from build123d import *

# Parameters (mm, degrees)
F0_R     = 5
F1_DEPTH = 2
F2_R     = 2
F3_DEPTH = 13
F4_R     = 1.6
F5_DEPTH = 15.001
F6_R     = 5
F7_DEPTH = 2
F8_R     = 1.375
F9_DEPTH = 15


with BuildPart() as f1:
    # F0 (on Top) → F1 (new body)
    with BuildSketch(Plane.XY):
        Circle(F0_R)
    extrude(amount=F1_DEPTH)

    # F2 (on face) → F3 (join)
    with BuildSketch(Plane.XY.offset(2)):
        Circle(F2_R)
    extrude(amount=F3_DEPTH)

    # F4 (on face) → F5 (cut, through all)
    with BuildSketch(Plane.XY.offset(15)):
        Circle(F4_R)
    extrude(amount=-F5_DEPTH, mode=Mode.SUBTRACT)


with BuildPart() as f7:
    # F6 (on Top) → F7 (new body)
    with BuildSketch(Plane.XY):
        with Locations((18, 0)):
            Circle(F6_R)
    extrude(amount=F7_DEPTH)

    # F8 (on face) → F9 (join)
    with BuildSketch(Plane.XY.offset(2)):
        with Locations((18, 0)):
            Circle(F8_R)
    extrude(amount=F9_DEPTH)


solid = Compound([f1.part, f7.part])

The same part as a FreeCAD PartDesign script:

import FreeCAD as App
import Part
import Sketcher

V = App.Vector
Q = App.Units.Quantity

doc = App.newDocument("Part")
body = doc.addObject("PartDesign::Body", "Body")

# Sketch on XY plane
sketch1 = body.newObject("Sketcher::SketchObject", "Sketch")
sketch1.AttachmentSupport = (doc.getObject("XY_Plane"), [""])
sketch1.MapMode = "FlatFace"
sketch1.addGeometry(Part.Circle(V(0, 0, 0), V(0, 0, 1), 5), False)
sketch1.addConstraint([
    Sketcher.Constraint("Coincident", 0, 3, -1, 1),
    Sketcher.Constraint("Diameter", 0, Q("10 mm")),
])
pad1 = body.newObject("PartDesign::Pad", "Pad")
pad1.Profile = sketch1
pad1.Length = 2

# Sketch on XY plane
sketch2 = body.newObject("Sketcher::SketchObject", "Sketch001")
sketch2.AttachmentSupport = (doc.getObject("XY_Plane"), [""])
sketch2.MapMode = "FlatFace"
sketch2.AttachmentOffset = App.Placement(V(0, 0, 2), App.Rotation())
sketch2.addGeometry(Part.Circle(V(0, 0, 0), V(0, 0, 1), 2), False)
sketch2.addConstraint([
    Sketcher.Constraint("Coincident", 0, 3, -1, 1),
    Sketcher.Constraint("Diameter", 0, Q("4 mm")),
])
pad2 = body.newObject("PartDesign::Pad", "Pad001")
pad2.Profile = sketch2
pad2.Length = 13

# Sketch on XY plane
sketch3 = body.newObject("Sketcher::SketchObject", "Sketch002")
sketch3.AttachmentSupport = (doc.getObject("XY_Plane"), [""])
sketch3.MapMode = "FlatFace"
sketch3.AttachmentOffset = App.Placement(V(0, 0, 15), App.Rotation())
sketch3.addGeometry(Part.Circle(V(0, 0, 0), V(0, 0, 1), 1.6), False)
sketch3.addConstraint([
    Sketcher.Constraint("Coincident", 0, 3, -1, 1),
    Sketcher.Constraint("Diameter", 0, Q("3.2 mm")),
])
pocket1 = body.newObject("PartDesign::Pocket", "Pocket")
pocket1.Profile = sketch3
pocket1.Type = "ThroughAll"
body2 = doc.addObject("PartDesign::Body", "Body001")

# Sketch on XY plane
sketch4 = body2.newObject("Sketcher::SketchObject", "Sketch003")
sketch4.AttachmentSupport = (doc.getObject("XY_Plane001"), [""])
sketch4.MapMode = "FlatFace"
sketch4.addGeometry(Part.Circle(V(18, 0, 0), V(0, 0, 1), 5), False)
sketch4.addConstraint([
    Sketcher.Constraint("PointOnObject", 0, 3, -1),
    Sketcher.Constraint("Diameter", 0, Q("10 mm")),
    Sketcher.Constraint("DistanceX", -1, 1, 0, 3, Q("18 mm")),
])
pad3 = body2.newObject("PartDesign::Pad", "Pad002")
pad3.Profile = sketch4
pad3.Length = 2

# Sketch on XY plane
sketch5 = body2.newObject("Sketcher::SketchObject", "Sketch004")
sketch5.AttachmentSupport = (doc.getObject("XY_Plane001"), [""])
sketch5.MapMode = "FlatFace"
sketch5.AttachmentOffset = App.Placement(V(0, 0, 2), App.Rotation())
sketch5.addGeometry(Part.Circle(V(18, 0, 0), V(0, 0, 1), 1.4), False)
sketch5.addConstraint([
    Sketcher.Constraint("PointOnObject", 0, 3, -1),
    Sketcher.Constraint("Diameter", 0, Q("2.75 mm")),
    Sketcher.Constraint("DistanceX", -1, 1, 0, 3, Q("18 mm")),
])
pad4 = body2.newObject("PartDesign::Pad", "Pad003")
pad4.Profile = sketch5
pad4.Length = 15

doc.recompute()
